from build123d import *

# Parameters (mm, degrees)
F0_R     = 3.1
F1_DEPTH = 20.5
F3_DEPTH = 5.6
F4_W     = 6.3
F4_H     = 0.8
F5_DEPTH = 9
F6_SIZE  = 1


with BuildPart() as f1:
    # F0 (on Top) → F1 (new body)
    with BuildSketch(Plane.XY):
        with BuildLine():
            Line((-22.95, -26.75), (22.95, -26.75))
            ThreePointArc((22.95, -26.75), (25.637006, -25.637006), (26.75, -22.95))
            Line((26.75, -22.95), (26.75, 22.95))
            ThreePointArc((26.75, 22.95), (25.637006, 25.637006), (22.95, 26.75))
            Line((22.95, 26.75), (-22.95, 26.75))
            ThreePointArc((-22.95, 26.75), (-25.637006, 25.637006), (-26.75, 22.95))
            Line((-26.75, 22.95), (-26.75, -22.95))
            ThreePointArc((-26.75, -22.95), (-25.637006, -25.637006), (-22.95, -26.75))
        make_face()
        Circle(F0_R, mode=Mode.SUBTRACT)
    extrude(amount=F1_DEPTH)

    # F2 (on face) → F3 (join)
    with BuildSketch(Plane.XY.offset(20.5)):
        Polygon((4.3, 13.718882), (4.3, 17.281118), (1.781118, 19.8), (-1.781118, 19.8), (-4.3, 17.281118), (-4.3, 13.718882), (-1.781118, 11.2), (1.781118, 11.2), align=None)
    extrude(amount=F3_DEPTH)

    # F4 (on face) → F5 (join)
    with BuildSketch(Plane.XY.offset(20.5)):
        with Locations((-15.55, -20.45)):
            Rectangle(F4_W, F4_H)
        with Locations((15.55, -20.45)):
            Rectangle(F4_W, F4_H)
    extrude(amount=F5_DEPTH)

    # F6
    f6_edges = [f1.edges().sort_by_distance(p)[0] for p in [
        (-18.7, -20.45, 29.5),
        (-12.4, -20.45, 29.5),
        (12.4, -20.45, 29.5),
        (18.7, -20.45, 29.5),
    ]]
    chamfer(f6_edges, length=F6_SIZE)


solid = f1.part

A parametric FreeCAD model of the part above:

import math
import FreeCAD as App
import Part
import Sketcher


def edges_at(feature, points):
    """Names of the edges that pass closest to the given points."""
    edges = feature.Shape.Edges
    near = lambda p: min(range(len(edges)), key=lambda i: edges[i].distToShape(Part.Vertex(*p))[0])
    return sorted({f"Edge{near(p) + 1}" for p in points})


def add_polygon(sketch, points):
    """Adds a closed chain of lines whose ends are joined by coincident constraints."""
    first, n = sketch.GeometryCount, len(points)
    for a, b in zip(points, points[1:] + points[:1]):
        sketch.addGeometry(Part.LineSegment(App.Vector(*a, 0), App.Vector(*b, 0)), False)
    for i in range(n):
        sketch.addConstraint(Sketcher.Constraint("Coincident", first + i, 2, first + (i + 1) % n, 1))

doc = App.newDocument("Part")
body = doc.addObject("PartDesign::Body", "Body")

# Sketch on XY plane
sketch1 = body.newObject("Sketcher::SketchObject", "Sketch")
sketch1.AttachmentSupport = (doc.getObject("XY_Plane"), [""])
sketch1.MapMode = "FlatFace"
sketch1.addGeometry([
    Part.LineSegment(App.Vector(-22.9, -26.8, 0), App.Vector(22.9, -26.8, 0)),  # 0
    Part.ArcOfCircle(Part.Circle(App.Vector(23, -23, 0), App.Vector(0, 0, 1), 3.8), math.radians(-90), math.radians(0)),  # 1
    Part.LineSegment(App.Vector(26.8, -22.9, 0), App.Vector(26.8, 22.9, 0)),  # 2
    Part.ArcOfCircle(Part.Circle(App.Vector(23, 23, 0), App.Vector(0, 0, 1), 3.8), math.radians(0), math.radians(90)),  # 3
    Part.LineSegment(App.Vector(22.9, 26.8, 0), App.Vector(-22.9, 26.8, 0)),  # 4
    Part.ArcOfCircle(Part.Circle(App.Vector(-23, 23, 0), App.Vector(0, 0, 1), 3.8), math.radians(90), math.radians(180)),  # 5
    Part.LineSegment(App.Vector(-26.8, 22.9, 0), App.Vector(-26.8, -22.9, 0)),  # 6
    Part.ArcOfCircle(Part.Circle(App.Vector(-23, -23, 0), App.Vector(0, 0, 1), 3.8), math.radians(180), math.radians(270)),  # 7
    Part.Circle(App.Vector(0, 0, 0), App.Vector(0, 0, 1), 3.1),  # 8
], False)
sketch1.addConstraint([
    Sketcher.Constraint("Tangent", 0, 2, 1, 1),
    Sketcher.Constraint("Tangent", 1, 2, 2, 1),
    Sketcher.Constraint("Tangent", 2, 2, 3, 1),
    Sketcher.Constraint("Tangent", 3, 2, 4, 1),
    Sketcher.Constraint("Tangent", 4, 2, 5, 1),
    Sketcher.Constraint("Tangent", 5, 2, 6, 1),
    Sketcher.Constraint("Tangent", 6, 2, 7, 1),
    Sketcher.Constraint("Tangent", 7, 2, 0, 1),
    Sketcher.Constraint("Horizontal", 0),
    Sketcher.Constraint("Vertical", 2),
    Sketcher.Constraint("Horizontal", 4),
    Sketcher.Constraint("Vertical", 6),
    Sketcher.Constraint("Coincident", 8, 3, -1, 1),
    Sketcher.Constraint("Equal", 1, 3),
    Sketcher.Constraint("Equal", 3, 5),
    Sketcher.Constraint("Equal", 5, 7),
    Sketcher.Constraint("Symmetric", 1, 3, 5, 3, -1, 1),
    Sketcher.Constraint("Equal", 4, 2),
    Sketcher.Constraint("Diameter", 8, 6.2),
    Sketcher.Constraint("Radius", 1, 3.799999),
    Sketcher.Constraint("DistanceX", 0, 1, 0, 2, 45.9),
])
pad1 = body.newObject("PartDesign::Pad", "Pad")
pad1.Profile = sketch1
pad1.Length = 20.5

# Sketch on XY plane
sketch2 = body.newObject("Sketcher::SketchObject", "Sketch001")
sketch2.AttachmentSupport = (doc.getObject("XY_Plane"), [""])
sketch2.MapMode = "FlatFace"
sketch2.AttachmentOffset = App.Placement(App.Vector(0, 0, 20.5), App.Rotation())
add_polygon(sketch2, [(4.3, 13.7), (4.3, 17.3), (1.8, 19.8), (-1.8, 19.8), (-4.3, 17.3), (-4.3, 13.7), (-1.8, 11.2), (1.8, 11.2)])  # lines 0-7
sketch2.addConstraint([
    Sketcher.Constraint("Vertical", 0),
    Sketcher.Constraint("Horizontal", 2),
    Sketcher.Constraint("Vertical", 4),
    Sketcher.Constraint("Horizontal", 6),
    Sketcher.Constraint("Symmetric", 0, 2, 3, 2, -2),
    Sketcher.Constraint("Perpendicular", 1, 3),
    Sketcher.Constraint("Perpendicular", 3, 5),
    Sketcher.Constraint("Perpendicular", 5, 7),
    Sketcher.Constraint("Horizontal", 4, 2, 7, 2),
    Sketcher.Constraint("Vertical", 2, 2, 5, 2),
    Sketcher.Constraint("Vertical", 1, 2, 6, 2),
    Sketcher.Constraint("Equal", 6, 0),
    Sketcher.Constraint("DistanceX", -1, 1, 0, 2, 4.3),
    Sketcher.Constraint("DistanceY", -1, 1, 1, 2, 19.8),
    Sketcher.Constraint("DistanceX", 2, 2, 2, 1, 3.562236),
])
pad2 = body.newObject("PartDesign::Pad", "Pad001")
pad2.Profile = sketch2
pad2.Length = 5.6

# Sketch on XY plane
sketch3 = body.newObject("Sketcher::SketchObject", "Sketch002")
sketch3.AttachmentSupport = (doc.getObject("XY_Plane"), [""])
sketch3.MapMode = "FlatFace"
sketch3.AttachmentOffset = App.Placement(App.Vector(0, 0, 20.5), App.Rotation())
add_polygon(sketch3, [(-18.7, -20.1), (-18.7, -20.9), (-12.4, -20.9), (-12.4, -20.1)])  # lines 0-3
add_polygon(sketch3, [(12.4, -20.1), (12.4, -20.9), (18.7, -20.9), (18.7, -20.1)])  # lines 4-7
sketch3.addConstraint([
    Sketcher.Constraint("Vertical", 0),
    Sketcher.Constraint("Horizontal", 1),
    Sketcher.Constraint("Vertical", 2),
    Sketcher.Constraint("Horizontal", 3),
    Sketcher.Constraint("Vertical", 4),
    Sketcher.Constraint("Horizontal", 5),
    Sketcher.Constraint("Vertical", 6),
    Sketcher.Constraint("Horizontal", 7),
    Sketcher.Constraint("Symmetric", 1, 2, 4, 2, -2),
    Sketcher.Constraint("Symmetric", 3, 2, 6, 2, -2),
    Sketcher.Constraint("DistanceX", 1, 1, 1, 2, 6.3),
    Sketcher.Constraint("DistanceY", 0, 2, 0, 1, 0.8),
    Sketcher.Constraint("DistanceX", 0, 2, -1, 1, 18.7),
    Sketcher.Constraint("DistanceY", 0, 2, -1, 1, 20.85),
])
pad3 = body.newObject("PartDesign::Pad", "Pad002")
pad3.Profile = sketch3
pad3.Length = 9
doc.recompute()

chamfer = body.newObject("PartDesign::Chamfer", "Chamfer")
chamfer.Base = (pad3, edges_at(pad3, [
    (-18.7, -20.45, 29.5),
    (-12.4, -20.45, 29.5),
    (12.4, -20.45, 29.5),
    (18.7, -20.45, 29.5),
]))
chamfer.Size = 1

doc.recompute()
